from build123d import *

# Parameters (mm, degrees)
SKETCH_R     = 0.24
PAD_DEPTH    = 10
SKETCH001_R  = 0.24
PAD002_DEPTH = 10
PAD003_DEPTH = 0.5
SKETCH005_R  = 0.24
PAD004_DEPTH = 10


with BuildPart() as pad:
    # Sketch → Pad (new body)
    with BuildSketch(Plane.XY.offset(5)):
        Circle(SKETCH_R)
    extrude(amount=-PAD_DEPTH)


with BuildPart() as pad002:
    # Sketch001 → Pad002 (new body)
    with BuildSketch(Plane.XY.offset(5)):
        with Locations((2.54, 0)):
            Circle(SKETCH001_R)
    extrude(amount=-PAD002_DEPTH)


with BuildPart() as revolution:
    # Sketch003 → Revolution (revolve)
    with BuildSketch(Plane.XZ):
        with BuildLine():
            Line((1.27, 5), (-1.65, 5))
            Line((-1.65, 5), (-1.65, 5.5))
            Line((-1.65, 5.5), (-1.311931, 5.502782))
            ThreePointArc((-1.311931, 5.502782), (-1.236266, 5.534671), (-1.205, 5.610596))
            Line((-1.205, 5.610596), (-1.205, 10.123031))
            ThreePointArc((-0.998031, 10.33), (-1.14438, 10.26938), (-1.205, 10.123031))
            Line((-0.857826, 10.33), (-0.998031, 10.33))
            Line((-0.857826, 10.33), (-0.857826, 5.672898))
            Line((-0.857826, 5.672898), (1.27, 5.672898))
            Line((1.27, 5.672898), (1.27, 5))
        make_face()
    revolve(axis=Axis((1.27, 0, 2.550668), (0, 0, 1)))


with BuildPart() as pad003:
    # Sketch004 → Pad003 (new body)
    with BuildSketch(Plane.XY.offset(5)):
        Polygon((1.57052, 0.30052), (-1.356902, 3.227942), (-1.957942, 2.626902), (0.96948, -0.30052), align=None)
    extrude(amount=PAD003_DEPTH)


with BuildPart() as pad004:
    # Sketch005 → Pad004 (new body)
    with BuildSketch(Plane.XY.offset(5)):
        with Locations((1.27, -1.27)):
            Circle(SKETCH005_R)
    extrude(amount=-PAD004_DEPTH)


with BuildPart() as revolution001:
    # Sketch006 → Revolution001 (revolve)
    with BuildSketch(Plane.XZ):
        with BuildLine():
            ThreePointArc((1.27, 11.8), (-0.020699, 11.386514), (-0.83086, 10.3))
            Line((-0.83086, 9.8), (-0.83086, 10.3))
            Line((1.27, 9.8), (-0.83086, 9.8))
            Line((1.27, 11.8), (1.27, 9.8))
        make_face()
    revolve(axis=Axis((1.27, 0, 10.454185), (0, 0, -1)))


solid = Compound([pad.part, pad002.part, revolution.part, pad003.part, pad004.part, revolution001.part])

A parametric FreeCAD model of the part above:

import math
import FreeCAD as App
import Part
import Sketcher
from FreeCAD import Vector
Q = App.Units.Quantity


def add_polygon(sketch, points):
    """Adds a closed chain of lines whose ends are joined by coincident constraints."""
    first, n = sketch.GeometryCount, len(points)
    for a, b in zip(points, points[1:] + points[:1]):
        sketch.addGeometry(Part.LineSegment(App.Vector(*a, 0), App.Vector(*b, 0)), False)
    for i in range(n):
        sketch.addConstraint(Sketcher.Constraint("Coincident", first + i, 2, first + (i + 1) % n, 1))

doc = App.newDocument("Part")
body = doc.addObject("PartDesign::Body", "Body")

# Sketch on XY plane
sketch1 = doc.addObject("Sketcher::SketchObject", "Sketch")
body.addObject(sketch1)
sketch1.AttachmentSupport = (doc.XY_Plane, [""])
sketch1.MapMode = "FlatFace"
sketch1.AttachmentOffset = App.Placement(Vector(0, 0, 5), App.Rotation())
sketch1.addGeometry(Part.Circle(Vector(0, 0, 0), Vector(0, 0, 1), 0.24), False)
sketch1.addConstraint(Sketcher.Constraint("Coincident", 0, 3, -1, 1))
sketch1.addConstraint(Sketcher.Constraint("Diameter", 0, Q("0.48 mm")))
pad1 = doc.addObject("PartDesign::Pad", "Pad")
body.addObject(pad1)
pad1.Profile = sketch1
pad1.Length = 10
pad1.Reversed = True
body2 = doc.addObject("PartDesign::Body", "Body001")

# Sketch on XY plane
sketch2 = doc.addObject("Sketcher::SketchObject", "Sketch001")
body2.addObject(sketch2)
sketch2.AttachmentSupport = (doc.getObject("XY_Plane001"), [""])
sketch2.MapMode = "FlatFace"
sketch2.AttachmentOffset = App.Placement(Vector(0, 0, 5), App.Rotation())
sketch2.addGeometry(Part.Circle(Vector(2.54, 0, 0), Vector(0, 0, 1), 0.24), False)
sketch2.addConstraint(Sketcher.Constraint("PointOnObject", 0, 3, -1))
sketch2.addConstraint(Sketcher.Constraint("Diameter", 0, Q("0.48 mm")))
sketch2.addConstraint(Sketcher.Constraint("DistanceX", -1, 1, 0, 3, Q("2.54 mm")))
pad2 = doc.addObject("PartDesign::Pad", "Pad001")
body2.addObject(pad2)
pad2.Profile = sketch2
pad2.Length = 10
pad2.Reversed = True
body3 = doc.addObject("PartDesign::Body", "Body002")

# Sketch on XZ plane
sketch3 = doc.addObject("Sketcher::SketchObject", "Sketch002")
body3.addObject(sketch3)
sketch3.AttachmentSupport = (doc.getObject("XZ_Plane002"), [""])
sketch3.MapMode = "FlatFace"
sketch3.addGeometry(Part.LineSegment(Vector(-1.65, 5, 0), Vector(1.27, 5, 0)), False)
sketch3.addGeometry(Part.LineSegment(Vector(1.27, 5, 0), Vector(1.27, 5.67, 0)), False)
sketch3.addGeometry(Part.LineSegment(Vector(1.27, 5.67, 0), Vector(-0.86, 5.67, 0)), False)
sketch3.addGeometry(Part.LineSegment(Vector(-0.86, 5.67, 0), Vector(-0.86, 10.33, 0)), False)
sketch3.addGeometry(Part.LineSegment(Vector(-0.86, 10.33, 0), Vector(-1, 10.33, 0)), False)
sketch3.addGeometry(Part.ArcOfCircle(Part.Circle(Vector(-1, 10.12, 0), Vector(0, 0, 1), 0.21), math.radians(90), math.radians(180)), False)
sketch3.addGeometry(Part.LineSegment(Vector(-1.21, 10.12, 0), Vector(-1.21, 5.61, 0)), False)
sketch3.addGeometry(Part.ArcOfCircle(Part.Circle(Vector(-1.31, 5.61, 0), Vector(0, 0, 1), 0.11), math.radians(-90), math.radians(0)), False)
sketch3.addGeometry(Part.LineSegment(Vector(-1.31, 5.5, 0), Vector(-1.65, 5.5, 0)), False)
sketch3.addGeometry(Part.LineSegment(Vector(-1.65, 5.5, 0), Vector(-1.65, 5, 0)), False)
sketch3.addGeometry(Part.LineSegment(Vector(1.27, 5, 0), Vector(1.27, 10.33, 0)), True)  # axis
sketch3.addConstraint(Sketcher.Constraint("Coincident", 0, 2, 1, 1))
sketch3.addConstraint(Sketcher.Constraint("Coincident", 1, 2, 2, 1))
sketch3.addConstraint(Sketcher.Constraint("Coincident", 2, 2, 3, 1))
sketch3.addConstraint(Sketcher.Constraint("Coincident", 3, 2, 4, 1))
sketch3.addConstraint(Sketcher.Constraint("Coincident", 4, 2, 5, 1))
sketch3.addConstraint(Sketcher.Constraint("Coincident", 5, 2, 6, 1))
sketch3.addConstraint(Sketcher.Constraint("Coincident", 6, 2, 7, 2))
sketch3.addConstraint(Sketcher.Constraint("Coincident", 7, 1, 8, 1))
sketch3.addConstraint(Sketcher.Constraint("Coincident", 8, 2, 9, 1))
sketch3.addConstraint(Sketcher.Constraint("Coincident", 9, 2, 0, 1))
sketch3.addConstraint(Sketcher.Constraint("Horizontal", 0))
sketch3.addConstraint(Sketcher.Constraint("Vertical", 1))
sketch3.addConstraint(Sketcher.Constraint("Horizontal", 2))
sketch3.addConstraint(Sketcher.Constraint("Vertical", 3))
sketch3.addConstraint(Sketcher.Constraint("Horizontal", 4))
sketch3.addConstraint(Sketcher.Constraint("Vertical", 6))
sketch3.addConstraint(Sketcher.Constraint("Vertical", 9))
sketch3.addConstraint(Sketcher.Constraint("Vertical", 10))
sketch3.addConstraint(Sketcher.Constraint("Coincident", 10, 1, 0, 2))
sketch3.addConstraint(Sketcher.Constraint("Horizontal", 7, 3, 6, 2))
sketch3.addConstraint(Sketcher.Constraint("Horizontal", 4, 2, 10, 2))
sketch3.addConstraint(Sketcher.Constraint("Vertical", 5, 3, 4, 2))
sketch3.addConstraint(Sketcher.Constraint("DistanceY", 9, 2, 9, 1, Q("0.5 mm")))
sketch3.addConstraint(Sketcher.Constraint("DistanceY", -1, 1, 0, 2, Q("5 mm")))
sketch3.addConstraint(Sketcher.Constraint("DistanceX", 0, 1, 0, 2, Q("2.92 mm")))
sketch3.addConstraint(Sketcher.Constraint("DistanceY", 10, 1, 10, 2, Q("5.33 mm")))
sketch3.addConstraint(Sketcher.Constraint("DistanceX", -1, 1, 0, 2, Q("1.27 mm")))
sketch3.addConstraint(Sketcher.Constraint("Radius", 5, Q("0.20697 mm")))
sketch3.addConstraint(Sketcher.Constraint("DistanceX", 5, 2, -1, 1, Q("1.205 mm")))
sketch3.addConstraint(Sketcher.Constraint("Radius", 7, Q("0.107816 mm")))
sketch3.addConstraint(Sketcher.Constraint("DistanceY", 6, 2, 2, 2, Q("0.062302 mm")))
sketch3.addConstraint(Sketcher.Constraint("Distance", 8, Q("0.33808 mm")))
sketch3.addConstraint(Sketcher.Constraint("DistanceX", 2, 2, 2, 1, Q("2.127826 mm")))
sketch3.addConstraint(Sketcher.Constraint("DistanceY", 1, 1, 1, 2, Q("0.672898 mm")))
sketch3.addConstraint(Sketcher.Constraint("DistanceY", 6, 2, 6, 1, Q("4.512435 mm")))
revolution = doc.addObject("PartDesign::Revolution", "Revolution")
body3.addObject(revolution)
revolution.Profile = sketch3
revolution.ReferenceAxis = (sketch3, ["Axis0"])
revolution.Angle = 360
body4 = doc.addObject("PartDesign::Body", "Body003")

# Sketch on XY plane
sketch4 = doc.addObject("Sketcher::SketchObject", "Sketch003")
body4.addObject(sketch4)
sketch4.AttachmentSupport = (doc.getObject("XY_Plane003"), [""])
sketch4.MapMode = "FlatFace"
sketch4.AttachmentOffset = App.Placement(Vector(0, 0, 5), App.Rotation())
add_polygon(sketch4, [(1.6, 0.3), (-1.4, 3.2), (-2, 2.6), (1, -0.3)])  # lines 0-3
sketch4.addConstraint(Sketcher.Constraint("Perpendicular", 0, 1))
sketch4.addConstraint(Sketcher.Constraint("Perpendicular", 1, 2))
sketch4.addConstraint(Sketcher.Constraint("Perpendicular", 2, 3))
sketch4.addConstraint(Sketcher.Constraint("Angle", 0, Q("135 deg")))
sketch4.addConstraint(Sketcher.Constraint("Distance", 0, Q("4.14 mm")))
sketch4.addConstraint(Sketcher.Constraint("Distance", 1, Q("0.849999 mm")))
sketch4.addConstraint(Sketcher.Constraint("DistanceY", -1, 1, 1, 2, Q("2.626902 mm")))
sketch4.addConstraint(Sketcher.Constraint("DistanceX", -1, 1, 2, 2, Q("0.96948 mm")))
pad3 = doc.addObject("PartDesign::Pad", "Pad002")
body4.addObject(pad3)
pad3.Profile = sketch4
pad3.Length = 0.5
body5 = doc.addObject("PartDesign::Body", "Body004")

# Sketch on XY plane
sketch5 = doc.addObject("Sketcher::SketchObject", "Sketch004")
body5.addObject(sketch5)
sketch5.AttachmentSupport = (doc.getObject("XY_Plane004"), [""])
sketch5.MapMode = "FlatFace"
sketch5.AttachmentOffset = App.Placement(Vector(0, 0, 5), App.Rotation())
sketch5.addGeometry(Part.Circle(Vector(1.27, -1.27, 0), Vector(0, 0, 1), 0.24), False)
sketch5.addConstraint(Sketcher.Constraint("Diameter", 0, Q("0.48 mm")))
sketch5.addConstraint(Sketcher.Constraint("DistanceX", -1, 1, 0, 3, Q("1.27 mm")))
sketch5.addConstraint(Sketcher.Constraint("DistanceY", 0, 3, -1, 1, Q("1.27 mm")))
pad4 = doc.addObject("PartDesign::Pad", "Pad003")
body5.addObject(pad4)
pad4.Profile = sketch5
pad4.Length = 10
pad4.Reversed = True
body6 = doc.addObject("PartDesign::Body", "Body005")

# Sketch on XZ plane
sketch6 = doc.addObject("Sketcher::SketchObject", "Sketch005")
body6.addObject(sketch6)
sketch6.AttachmentSupport = (doc.getObject("XZ_Plane005"), [""])
sketch6.MapMode = "FlatFace"
sketch6.addGeometry(Part.ArcOfCircle(Part.Circle(Vector(1.3, 9.6, 0), Vector(0, 0, 1), 2.2), math.radians(90), math.radians(161)), False)
sketch6.addGeometry(Part.LineSegment(Vector(-0.8, 10.3, 0), Vector(-0.8, 9.8, 0)), False)
sketch6.addGeometry(Part.LineSegment(Vector(-0.8, 9.8, 0), Vector(1.3, 9.8, 0)), False)
sketch6.addGeometry(Part.LineSegment(Vector(1.3, 9.8, 0), Vector(1.3, 11.8, 0)), False)
sketch6.addGeometry(Part.LineSegment(Vector(1.3, 11.8, 0), Vector(1.3, 9.6, 0)), True)  # axis
sketch6.addConstraint(Sketcher.Constraint("Coincident", 0, 2, 1, 1))
sketch6.addConstraint(Sketcher.Constraint("Coincident", 1, 2, 2, 1))
sketch6.addConstraint(Sketcher.Constraint("Coincident", 2, 2, 3, 1))
sketch6.addConstraint(Sketcher.Constraint("Coincident", 3, 2, 0, 1))
sketch6.addConstraint(Sketcher.Constraint("Vertical", 1))
sketch6.addConstraint(Sketcher.Constraint("Horizontal", 2))
sketch6.addConstraint(Sketcher.Constraint("Vertical", 3))
sketch6.addConstraint(Sketcher.Constraint("Vertical", 4))
sketch6.addConstraint(Sketcher.Constraint("Coincident", 4, 1, 3, 2))
sketch6.addConstraint(Sketcher.Constraint("Coincident", 4, 2, 0, 3))
sketch6.addConstraint(Sketcher.Constraint("DistanceY", 3, 1, 3, 2, Q("2 mm")))
sketch6.addConstraint(Sketcher.Constraint("DistanceY", 1, 2, 1, 1, Q("0.5 mm")))
sketch6.addConstraint(Sketcher.Constraint("DistanceY", -1, 1, 0, 2, Q("10.3 mm")))
sketch6.addConstraint(Sketcher.Constraint("DistanceX", -1, 1, 0, 3, Q("1.269999 mm")))
sketch6.addConstraint(Sketcher.Constraint("Radius", 0, Q("2.221203 mm")))
revolution2 = doc.addObject("PartDesign::Revolution", "Revolution001")
body6.addObject(revolution2)
revolution2.Profile = sketch6
revolution2.ReferenceAxis = (sketch6, ["Axis0"])
revolution2.Angle = 360

doc.recompute()
